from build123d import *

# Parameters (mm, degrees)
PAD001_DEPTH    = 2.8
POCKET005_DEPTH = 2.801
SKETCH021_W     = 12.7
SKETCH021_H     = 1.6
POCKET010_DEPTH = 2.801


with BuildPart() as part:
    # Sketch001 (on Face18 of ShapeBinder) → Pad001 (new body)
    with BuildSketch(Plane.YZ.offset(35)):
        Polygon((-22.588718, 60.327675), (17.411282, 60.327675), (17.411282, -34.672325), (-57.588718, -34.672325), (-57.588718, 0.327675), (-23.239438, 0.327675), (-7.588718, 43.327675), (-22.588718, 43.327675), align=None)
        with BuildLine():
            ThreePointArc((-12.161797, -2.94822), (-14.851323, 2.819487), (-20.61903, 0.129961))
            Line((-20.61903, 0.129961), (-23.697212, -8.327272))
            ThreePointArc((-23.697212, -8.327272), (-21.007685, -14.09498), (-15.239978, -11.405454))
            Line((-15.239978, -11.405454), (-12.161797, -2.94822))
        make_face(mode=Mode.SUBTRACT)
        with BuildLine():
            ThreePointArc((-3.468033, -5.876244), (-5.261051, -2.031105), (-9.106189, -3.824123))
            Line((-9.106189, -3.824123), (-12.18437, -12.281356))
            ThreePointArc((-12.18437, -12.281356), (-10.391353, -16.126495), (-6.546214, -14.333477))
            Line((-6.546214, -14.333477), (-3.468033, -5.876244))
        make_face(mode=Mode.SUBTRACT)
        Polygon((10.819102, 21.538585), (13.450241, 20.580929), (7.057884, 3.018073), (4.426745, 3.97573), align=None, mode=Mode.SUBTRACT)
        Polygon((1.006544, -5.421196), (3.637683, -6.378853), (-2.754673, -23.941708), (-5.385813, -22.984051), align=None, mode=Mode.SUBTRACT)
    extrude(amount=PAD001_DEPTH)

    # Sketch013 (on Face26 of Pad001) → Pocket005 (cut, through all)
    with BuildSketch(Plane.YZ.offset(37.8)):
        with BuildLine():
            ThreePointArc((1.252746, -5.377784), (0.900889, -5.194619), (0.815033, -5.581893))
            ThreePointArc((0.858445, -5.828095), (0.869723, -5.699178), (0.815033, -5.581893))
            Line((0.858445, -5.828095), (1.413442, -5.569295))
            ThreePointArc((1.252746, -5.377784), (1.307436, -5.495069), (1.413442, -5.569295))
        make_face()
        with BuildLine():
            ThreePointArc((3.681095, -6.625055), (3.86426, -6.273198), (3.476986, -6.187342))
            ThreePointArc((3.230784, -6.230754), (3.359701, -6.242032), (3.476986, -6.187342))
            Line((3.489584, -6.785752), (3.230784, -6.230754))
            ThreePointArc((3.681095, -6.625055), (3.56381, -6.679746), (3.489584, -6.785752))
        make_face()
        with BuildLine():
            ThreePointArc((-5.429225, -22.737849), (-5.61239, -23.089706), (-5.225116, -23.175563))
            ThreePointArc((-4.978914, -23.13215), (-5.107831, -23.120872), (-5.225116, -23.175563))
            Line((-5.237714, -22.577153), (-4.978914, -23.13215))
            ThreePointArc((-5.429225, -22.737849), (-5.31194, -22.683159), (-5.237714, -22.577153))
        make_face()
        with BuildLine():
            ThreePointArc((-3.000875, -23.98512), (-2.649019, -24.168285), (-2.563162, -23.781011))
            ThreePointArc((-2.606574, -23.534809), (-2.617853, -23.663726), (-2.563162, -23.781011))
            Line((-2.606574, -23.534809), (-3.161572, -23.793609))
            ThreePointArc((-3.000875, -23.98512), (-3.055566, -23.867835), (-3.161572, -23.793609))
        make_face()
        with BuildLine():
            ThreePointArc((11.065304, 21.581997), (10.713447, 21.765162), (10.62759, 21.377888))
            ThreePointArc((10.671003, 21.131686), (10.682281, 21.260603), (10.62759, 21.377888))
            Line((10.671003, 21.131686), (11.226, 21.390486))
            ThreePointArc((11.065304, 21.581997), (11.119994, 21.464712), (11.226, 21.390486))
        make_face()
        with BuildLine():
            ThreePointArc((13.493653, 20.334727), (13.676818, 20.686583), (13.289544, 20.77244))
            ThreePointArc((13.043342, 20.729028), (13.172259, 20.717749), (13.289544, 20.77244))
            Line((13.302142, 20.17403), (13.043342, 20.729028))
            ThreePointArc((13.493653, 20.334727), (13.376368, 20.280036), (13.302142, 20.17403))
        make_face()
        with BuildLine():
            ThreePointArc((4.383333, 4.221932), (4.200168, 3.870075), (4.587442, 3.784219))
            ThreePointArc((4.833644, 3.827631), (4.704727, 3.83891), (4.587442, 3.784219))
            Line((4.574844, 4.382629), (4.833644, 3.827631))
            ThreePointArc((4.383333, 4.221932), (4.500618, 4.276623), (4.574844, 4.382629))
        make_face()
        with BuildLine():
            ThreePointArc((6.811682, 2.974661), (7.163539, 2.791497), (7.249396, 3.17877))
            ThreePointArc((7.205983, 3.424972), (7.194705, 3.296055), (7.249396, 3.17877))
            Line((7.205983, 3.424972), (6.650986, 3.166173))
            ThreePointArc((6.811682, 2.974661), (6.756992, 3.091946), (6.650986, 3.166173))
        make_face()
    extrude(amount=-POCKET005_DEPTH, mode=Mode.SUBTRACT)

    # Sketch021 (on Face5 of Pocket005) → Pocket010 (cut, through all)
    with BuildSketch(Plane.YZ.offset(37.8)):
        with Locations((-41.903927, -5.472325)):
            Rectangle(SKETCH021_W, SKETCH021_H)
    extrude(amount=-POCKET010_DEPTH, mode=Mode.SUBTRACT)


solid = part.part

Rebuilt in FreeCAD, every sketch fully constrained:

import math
import FreeCAD as App
import Part
import Sketcher
from FreeCAD import Vector
Q = App.Units.Quantity

doc = App.newDocument("Part")
body = doc.addObject("PartDesign::Body", "Body")

# Sketch on YZ plane
sketch1 = doc.addObject("Sketcher::SketchObject", "Sketch")
body.addObject(sketch1)
sketch1.AttachmentSupport = (doc.YZ_Plane, [""])
sketch1.MapMode = "FlatFace"
sketch1.AttachmentOffset = App.Placement(Vector(0, 0, 35), App.Rotation())
sketch1.addGeometry(Part.LineSegment(Vector(17.411282, 60.327675, 0), Vector(-22.588718, 60.327675, 0)), False)
sketch1.addGeometry(Part.LineSegment(Vector(-22.588718, 60.327675, 0), Vector(-22.588718, 43.327675, 0)), False)
sketch1.addGeometry(Part.LineSegment(Vector(-22.588718, 43.327675, 0), Vector(-7.588718, 43.327675, 0)), False)
sketch1.addGeometry(Part.LineSegment(Vector(-7.588718, 43.327675, 0), Vector(-23.239438, 0.327675, 0)), False)
sketch1.addGeometry(Part.LineSegment(Vector(-23.239438, 0.327675, 0), Vector(-57.588718, 0.327675, 0)), False)
sketch1.addGeometry(Part.LineSegment(Vector(-57.588718, 0.327675, 0), Vector(-57.588718, -34.672325, 0)), False)
sketch1.addGeometry(Part.LineSegment(Vector(-57.588718, -34.672325, 0), Vector(17.411282, -34.672325, 0)), False)
sketch1.addGeometry(Part.LineSegment(Vector(17.411282, -34.672325, 0), Vector(17.411282, 60.327675, 0)), False)
sketch1.addGeometry(Part.LineSegment(Vector(1.006544, -5.421196, 0), Vector(3.637683, -6.378853, 0)), False)
sketch1.addGeometry(Part.LineSegment(Vector(3.637683, -6.378853, 0), Vector(-2.754673, -23.941708, 0)), False)
sketch1.addGeometry(Part.LineSegment(Vector(-2.754673, -23.941708, 0), Vector(-5.385813, -22.984051, 0)), False)
sketch1.addGeometry(Part.LineSegment(Vector(-5.385813, -22.984051, 0), Vector(1.006544, -5.421196, 0)), False)
sketch1.addGeometry(Part.LineSegment(Vector(-3.468033, -5.876244, 0), Vector(-6.546214, -14.333477, 0)), False)
sketch1.addGeometry(Part.ArcOfCircle(Part.Circle(Vector(-9.365292, -13.307417, 0), Vector(0, 0, 1), 3), math.radians(159.999987), math.radians(340.000012)), False)
sketch1.addGeometry(Part.LineSegment(Vector(-12.18437, -12.281356, 0), Vector(-9.106189, -3.824123, 0)), False)
sketch1.addGeometry(Part.ArcOfCircle(Part.Circle(Vector(-6.287111, -4.850183, 0), Vector(0, 0, 1), 3), math.radians(-20.000006), math.radians(160.000005)), False)
sketch1.addGeometry(Part.LineSegment(Vector(-12.161797, -2.94822, 0), Vector(-15.239978, -11.405454, 0)), False)
sketch1.addGeometry(Part.ArcOfCircle(Part.Circle(Vector(-19.468595, -9.866363, 0), Vector(0, 0, 1), 4.5), math.radians(160.000001), math.radians(339.999992)), False)
sketch1.addGeometry(Part.LineSegment(Vector(-23.697212, -8.327272, 0), Vector(-20.61903, 0.129961, 0)), False)
sketch1.addGeometry(Part.ArcOfCircle(Part.Circle(Vector(-16.390414, -1.409129, 0), Vector(0, 0, 1), 4.5), math.radians(-20), math.radians(160)), False)
sketch1.addGeometry(Part.LineSegment(Vector(10.819102, 21.538585, 0), Vector(13.450241, 20.580929, 0)), False)
sketch1.addGeometry(Part.LineSegment(Vector(13.450241, 20.580929, 0), Vector(7.057884, 3.018073, 0)), False)
sketch1.addGeometry(Part.LineSegment(Vector(7.057884, 3.018073, 0), Vector(4.426745, 3.97573, 0)), False)
sketch1.addGeometry(Part.LineSegment(Vector(4.426745, 3.97573, 0), Vector(10.819102, 21.538585, 0)), False)
sketch1.addConstraint(Sketcher.Constraint("Coincident", 0, 2, 1, 1))
sketch1.addConstraint(Sketcher.Constraint("Coincident", 1, 2, 2, 1))
sketch1.addConstraint(Sketcher.Constraint("Coincident", 2, 2, 3, 1))
sketch1.addConstraint(Sketcher.Constraint("Coincident", 3, 2, 4, 1))
sketch1.addConstraint(Sketcher.Constraint("Coincident", 4, 2, 5, 1))
sketch1.addConstraint(Sketcher.Constraint("Coincident", 5, 2, 6, 1))
sketch1.addConstraint(Sketcher.Constraint("Coincident", 6, 2, 7, 1))
sketch1.addConstraint(Sketcher.Constraint("Coincident", 7, 2, 0, 1))
sketch1.addConstraint(Sketcher.Constraint("Coincident", 8, 2, 9, 1))
sketch1.addConstraint(Sketcher.Constraint("Coincident", 9, 2, 10, 1))
sketch1.addConstraint(Sketcher.Constraint("Coincident", 10, 2, 11, 1))
sketch1.addConstraint(Sketcher.Constraint("Coincident", 11, 2, 8, 1))
sketch1.addConstraint(Sketcher.Constraint("Tangent", 12, 2, 13, 2))
sketch1.addConstraint(Sketcher.Constraint("Tangent", 13, 1, 14, 1))
sketch1.addConstraint(Sketcher.Constraint("Tangent", 14, 2, 15, 2))
sketch1.addConstraint(Sketcher.Constraint("Tangent", 15, 1, 12, 1))
sketch1.addConstraint(Sketcher.Constraint("Tangent", 16, 2, 17, 2))
sketch1.addConstraint(Sketcher.Constraint("Tangent", 17, 1, 18, 1))
sketch1.addConstraint(Sketcher.Constraint("Tangent", 18, 2, 19, 2))
sketch1.addConstraint(Sketcher.Constraint("Tangent", 19, 1, 16, 1))
sketch1.addConstraint(Sketcher.Constraint("Coincident", 20, 2, 21, 1))
sketch1.addConstraint(Sketcher.Constraint("Coincident", 21, 2, 22, 1))
sketch1.addConstraint(Sketcher.Constraint("Coincident", 22, 2, 23, 1))
sketch1.addConstraint(Sketcher.Constraint("Coincident", 23, 2, 20, 1))
sketch1.addConstraint(Sketcher.Constraint("Horizontal", 0))
sketch1.addConstraint(Sketcher.Constraint("Vertical", 1))
sketch1.addConstraint(Sketcher.Constraint("Horizontal", 2))
sketch1.addConstraint(Sketcher.Constraint("Horizontal", 4))
sketch1.addConstraint(Sketcher.Constraint("Vertical", 5))
sketch1.addConstraint(Sketcher.Constraint("Horizontal", 6))
sketch1.addConstraint(Sketcher.Constraint("Vertical", 7))
sketch1.addConstraint(Sketcher.Constraint("Equal", 13, 15))
sketch1.addConstraint(Sketcher.Constraint("Equal", 17, 19))
sketch1.addConstraint(Sketcher.Constraint("Perpendicular", 3, 8))
sketch1.addConstraint(Sketcher.Constraint("Perpendicular", 8, 9))
sketch1.addConstraint(Sketcher.Constraint("Perpendicular", 9, 10))
sketch1.addConstraint(Sketcher.Constraint("Perpendicular", 10, 11))
sketch1.addConstraint(Sketcher.Constraint("Parallel", 11, 12))
sketch1.addConstraint(Sketcher.Constraint("Parallel", 14, 16))
sketch1.addConstraint(Sketcher.Constraint("Perpendicular", 18, 20))
sketch1.addConstraint(Sketcher.Constraint("Perpendicular", 20, 21))
sketch1.addConstraint(Sketcher.Constraint("Perpendicular", 21, 22))
sketch1.addConstraint(Sketcher.Constraint("Perpendicular", 22, 23))
sketch1.addConstraint(Sketcher.Constraint("Equal", 14, 16))
sketch1.addConstraint(Sketcher.Constraint("Equal", 10, 20))
sketch1.addConstraint(Sketcher.Constraint("Equal", 11, 21))
sketch1.addConstraint(Sketcher.Constraint("Radius", 13, 3.0))
sketch1.addConstraint(Sketcher.Constraint("Radius", 17, 4.5))
sketch1.addConstraint(Sketcher.Constraint("DistanceX", 0, 2, 0, 1, 40.0))
sketch1.addConstraint(Sketcher.Constraint("DistanceX", 2, 1, 2, 2, 15.0))
sketch1.addConstraint(Sketcher.Constraint("DistanceX", 6, 1, 6, 2, 75.0))
sketch1.addConstraint(Sketcher.Constraint("DistanceY", 1, 2, 1, 1, 17.0))
sketch1.addConstraint(Sketcher.Constraint("DistanceY", 5, 2, 5, 1, 35.0))
sketch1.addConstraint(Sketcher.Constraint("DistanceY", 7, 1, 7, 2, 95.0))
sketch1.addConstraint(Sketcher.Constraint("Angle", 3, Q("-110 deg")))
sketch1.addConstraint(Sketcher.Constraint("Distance", 12, 8.999999))
sketch1.addConstraint(Sketcher.Constraint("Distance", 8, 2.8))
sketch1.addConstraint(Sketcher.Constraint("Distance", 9, 18.69))
sketch1.addConstraint(Sketcher.Constraint("DistanceX", 12, 2, 10, 2, 1.160401))
sketch1.addConstraint(Sketcher.Constraint("DistanceX", 8, 2, 21, 2, 3.420201))
sketch1.addConstraint(Sketcher.Constraint("DistanceX", 15, 3, -1, 1, 6.287111))
sketch1.addConstraint(Sketcher.Constraint("DistanceY", 19, 3, -1, 1, 1.409129))
sketch1.addConstraint(Sketcher.Constraint("DistanceX", 0, 2, -1, 1, 22.588718))
sketch1.addConstraint(Sketcher.Constraint("DistanceY", 10, 2, -1, 1, 22.984051))
sketch1.addConstraint(Sketcher.Constraint("DistanceX", 16, 2, -1, 1, 15.239978))
sketch1.addConstraint(Sketcher.Constraint("DistanceY", -1, 1, 20, 2, 20.580929))
sketch1.addConstraint(Sketcher.Constraint("DistanceY", 17, 3, 15, 3, 5.016179))
sketch1.addConstraint(Sketcher.Constraint("DistanceY", 15, 3, 0, 2, 65.177858))
pad1 = doc.addObject("PartDesign::Pad", "Pad")
body.addObject(pad1)
pad1.Profile = sketch1
pad1.Length = 2.8

# Sketch on YZ plane
sketch2 = doc.addObject("Sketcher::SketchObject", "Sketch001")
body.addObject(sketch2)
sketch2.AttachmentSupport = (doc.YZ_Plane, [""])
sketch2.MapMode = "FlatFace"
sketch2.AttachmentOffset = App.Placement(Vector(0, 0, 37.8), App.Rotation())
sketch2.addGeometry(Part.ArcOfCircle(Part.Circle(Vector(1.006544, -5.421196, 0), Vector(0, 0, 1), 0.25), math.radians(9.999947), math.radians(220.000069)), False)
sketch2.addGeometry(Part.ArcOfCircle(Part.Circle(Vector(0.623516, -5.742591, 0), Vector(0, 0, 1), 0.250005), math.radians(-19.999312), math.radians(39.999287)), False)
sketch2.addGeometry(Part.LineSegment(Vector(0.858445, -5.828095, 0), Vector(1.413442, -5.569295, 0)), False)
sketch2.addGeometry(Part.ArcOfCircle(Part.Circle(Vector(1.498945, -5.334375, 0), Vector(0, 0, 1), 0.249996), math.radians(-170.000573), math.radians(-109.999711)), False)
sketch2.addGeometry(Part.ArcOfCircle(Part.Circle(Vector(3.637683, -6.378853, 0), Vector(0, 0, 1), 0.25), math.radians(-80.000053), math.radians(130.000069)), False)
sketch2.addGeometry(Part.ArcOfCircle(Part.Circle(Vector(3.316288, -5.995825, 0), Vector(0, 0, 1), 0.250005), math.radians(-109.999312), math.radians(-50.000713)), False)
sketch2.addGeometry(Part.LineSegment(Vector(3.230784, -6.230754, 0), Vector(3.489584, -6.785752, 0)), False)
sketch2.addGeometry(Part.ArcOfCircle(Part.Circle(Vector(3.724507, -6.871257, 0), Vector(0, 0, 1), 0.25), math.radians(100.000003), math.radians(160.000063)), False)
sketch2.addGeometry(Part.ArcOfCircle(Part.Circle(Vector(-5.385813, -22.984051, 0), Vector(0, 0, 1), 0.25), math.radians(100.000038), math.radians(309.999878)), False)
sketch2.addGeometry(Part.ArcOfCircle(Part.Circle(Vector(-5.064418, -23.367076, 0), Vector(0, 0, 1), 0.250002), math.radians(70.000513), math.radians(129.999914)), False)
sketch2.addGeometry(Part.LineSegment(Vector(-4.978914, -23.13215, 0), Vector(-5.237714, -22.577153, 0)), False)
sketch2.addGeometry(Part.ArcOfCircle(Part.Circle(Vector(-5.472634, -22.49165, 0), Vector(0, 0, 1), 0.249996), math.radians(-80.000573), math.radians(-19.999711)), False)
sketch2.addGeometry(Part.ArcOfCircle(Part.Circle(Vector(-2.754673, -23.941708, 0), Vector(0, 0, 1), 0.25), math.radians(-169.999979), math.radians(39.999995)), False)
sketch2.addGeometry(Part.ArcOfCircle(Part.Circle(Vector(-2.371652, -23.620314, 0), Vector(0, 0, 1), 0.249999), math.radians(159.999846), math.radians(220.000129)), False)
sketch2.addGeometry(Part.LineSegment(Vector(-2.606574, -23.534809, 0), Vector(-3.161572, -23.793609, 0)), False)
sketch2.addGeometry(Part.ArcOfCircle(Part.Circle(Vector(-3.247077, -24.028532, 0), Vector(0, 0, 1), 0.25), math.radians(10.000003), math.radians(70.000063)), False)
sketch2.addGeometry(Part.ArcOfCircle(Part.Circle(Vector(10.819102, 21.538585, 0), Vector(0, 0, 1), 0.25), math.radians(10.000038), math.radians(219.999878)), False)
sketch2.addGeometry(Part.ArcOfCircle(Part.Circle(Vector(10.436077, 21.21719, 0), Vector(0, 0, 1), 0.250002), math.radians(-19.999487), math.radians(39.999914)), False)
sketch2.addGeometry(Part.LineSegment(Vector(10.671003, 21.131686, 0), Vector(11.226, 21.390486, 0)), False)
sketch2.addGeometry(Part.ArcOfCircle(Part.Circle(Vector(11.311503, 21.625406, 0), Vector(0, 0, 1), 0.249996), math.radians(-170.000573), math.radians(-109.999711)), False)
sketch2.addGeometry(Part.ArcOfCircle(Part.Circle(Vector(13.450241, 20.580929, 0), Vector(0, 0, 1), 0.25), math.radians(-79.999979), math.radians(129.999995)), False)
sketch2.addGeometry(Part.ArcOfCircle(Part.Circle(Vector(13.128847, 20.96395, 0), Vector(0, 0, 1), 0.249999), math.radians(-110.000154), math.radians(-49.999871)), False)
sketch2.addGeometry(Part.LineSegment(Vector(13.043342, 20.729028, 0), Vector(13.302142, 20.17403, 0)), False)
sketch2.addGeometry(Part.ArcOfCircle(Part.Circle(Vector(13.537065, 20.088525, 0), Vector(0, 0, 1), 0.25), math.radians(100.000003), math.radians(160.000063)), False)
sketch2.addGeometry(Part.ArcOfCircle(Part.Circle(Vector(4.426745, 3.97573, 0), Vector(0, 0, 1), 0.25), math.radians(99.999947), math.radians(310.000069)), False)
sketch2.addGeometry(Part.ArcOfCircle(Part.Circle(Vector(4.748139, 3.592709, 0), Vector(0, 0, 1), 0.249999), math.radians(69.999846), math.radians(130.000129)), False)
sketch2.addGeometry(Part.LineSegment(Vector(4.833644, 3.827631, 0), Vector(4.574844, 4.382629, 0)), False)
sketch2.addGeometry(Part.ArcOfCircle(Part.Circle(Vector(4.339921, 4.468134, 0), Vector(0, 0, 1), 0.25), math.radians(-79.999997), math.radians(-19.999937)), False)
sketch2.addGeometry(Part.ArcOfCircle(Part.Circle(Vector(7.057884, 3.018074, 0), Vector(0, 0, 1), 0.25), math.radians(-169.999803), math.radians(39.999719)), False)
sketch2.addGeometry(Part.ArcOfCircle(Part.Circle(Vector(7.440909, 3.339468, 0), Vector(0, 0, 1), 0.250002), math.radians(160.000513), math.radians(219.999914)), False)
sketch2.addGeometry(Part.LineSegment(Vector(7.205983, 3.424972, 0), Vector(6.650986, 3.166173, 0)), False)
sketch2.addGeometry(Part.ArcOfCircle(Part.Circle(Vector(6.56548, 2.931251, 0), Vector(0, 0, 1), 0.25), math.radians(9.999642), math.radians(69.999779)), False)
sketch2.addConstraint(Sketcher.Constraint("Coincident", 0, 2, 1, 2))
sketch2.addConstraint(Sketcher.Constraint("Coincident", 1, 1, 2, 1))
sketch2.addConstraint(Sketcher.Constraint("Coincident", 2, 2, 3, 2))
sketch2.addConstraint(Sketcher.Constraint("Coincident", 3, 1, 0, 1))
sketch2.addConstraint(Sketcher.Constraint("Coincident", 4, 2, 5, 2))
sketch2.addConstraint(Sketcher.Constraint("Coincident", 5, 1, 6, 1))
sketch2.addConstraint(Sketcher.Constraint("Coincident", 6, 2, 7, 2))
sketch2.addConstraint(Sketcher.Constraint("Tangent", 7, 1, 4, 1))
sketch2.addConstraint(Sketcher.Constraint("Tangent", 8, 2, 9, 2))
sketch2.addConstraint(Sketcher.Constraint("Coincident", 9, 1, 10, 1))
sketch2.addConstraint(Sketcher.Constraint("Coincident", 10, 2, 11, 2))
sketch2.addConstraint(Sketcher.Constraint("Coincident", 11, 1, 8, 1))
sketch2.addConstraint(Sketcher.Constraint("Coincident", 12, 2, 13, 2))
sketch2.addConstraint(Sketcher.Constraint("Coincident", 13, 1, 14, 1))
sketch2.addConstraint(Sketcher.Constraint("Coincident", 14, 2, 15, 2))
sketch2.addConstraint(Sketcher.Constraint("Tangent", 15, 1, 12, 1))
sketch2.addConstraint(Sketcher.Constraint("Tangent", 16, 2, 17, 2))
sketch2.addConstraint(Sketcher.Constraint("Coincident", 17, 1, 18, 1))
sketch2.addConstraint(Sketcher.Constraint("Coincident", 18, 2, 19, 2))
sketch2.addConstraint(Sketcher.Constraint("Coincident", 19, 1, 16, 1))
sketch2.addConstraint(Sketcher.Constraint("Coincident", 20, 2, 21, 2))
sketch2.addConstraint(Sketcher.Constraint("Coincident", 21, 1, 22, 1))
sketch2.addConstraint(Sketcher.Constraint("Coincident", 22, 2, 23, 2))
sketch2.addConstraint(Sketcher.Constraint("Tangent", 23, 1, 20, 1))
sketch2.addConstraint(Sketcher.Constraint("Tangent", 24, 2, 25, 2))
sketch2.addConstraint(Sketcher.Constraint("Coincident", 25, 1, 26, 1))
sketch2.addConstraint(Sketcher.Constraint("Coincident", 26, 2, 27, 2))
sketch2.addConstraint(Sketcher.Constraint("Tangent", 27, 1, 24, 1))
sketch2.addConstraint(Sketcher.Constraint("Coincident", 28, 2, 29, 2))
sketch2.addConstraint(Sketcher.Constraint("Coincident", 29, 1, 30, 1))
sketch2.addConstraint(Sketcher.Constraint("Coincident", 30, 2, 31, 2))
sketch2.addConstraint(Sketcher.Constraint("Coincident", 31, 1, 28, 1))
sketch2.addConstraint(Sketcher.Constraint("Equal", 0, 4))
sketch2.addConstraint(Sketcher.Constraint("Equal", 1, 5))
sketch2.addConstraint(Sketcher.Constraint("Equal", 4, 7))
sketch2.addConstraint(Sketcher.Constraint("Equal", 7, 8))
sketch2.addConstraint(Sketcher.Constraint("Equal", 3, 11))
sketch2.addConstraint(Sketcher.Constraint("Equal", 8, 12))
sketch2.addConstraint(Sketcher.Constraint("Equal", 12, 13))
sketch2.addConstraint(Sketcher.Constraint("Equal", 13, 15))
sketch2.addConstraint(Sketcher.Constraint("Equal", 15, 16))
sketch2.addConstraint(Sketcher.Constraint("Equal", 9, 17))
sketch2.addConstraint(Sketcher.Constraint("Equal", 11, 19))
sketch2.addConstraint(Sketcher.Constraint("Equal", 16, 20))
sketch2.addConstraint(Sketcher.Constraint("Equal", 20, 21))
sketch2.addConstraint(Sketcher.Constraint("Equal", 21, 23))
sketch2.addConstraint(Sketcher.Constraint("Equal", 23, 24))
sketch2.addConstraint(Sketcher.Constraint("Equal", 24, 25))
sketch2.addConstraint(Sketcher.Constraint("Equal", 25, 27))
sketch2.addConstraint(Sketcher.Constraint("Equal", 27, 28))
sketch2.addConstraint(Sketcher.Constraint("Equal", 17, 29))
sketch2.addConstraint(Sketcher.Constraint("Equal", 28, 31))
sketch2.addConstraint(Sketcher.Constraint("Perpendicular", 2, 6))
sketch2.addConstraint(Sketcher.Constraint("Parallel", 6, 10))
sketch2.addConstraint(Sketcher.Constraint("Perpendicular", 10, 14))
sketch2.addConstraint(Sketcher.Constraint("Parallel", 14, 18))
sketch2.addConstraint(Sketcher.Constraint("Perpendicular", 18, 22))
sketch2.addConstraint(Sketcher.Constraint("Parallel", 22, 26))
sketch2.addConstraint(Sketcher.Constraint("Perpendicular", 26, 30))
sketch2.addConstraint(Sketcher.Constraint("Equal", 2, 6))
sketch2.addConstraint(Sketcher.Constraint("Equal", 6, 10))
sketch2.addConstraint(Sketcher.Constraint("Equal", 10, 14))
sketch2.addConstraint(Sketcher.Constraint("Equal", 14, 18))
sketch2.addConstraint(Sketcher.Constraint("Equal", 18, 22))
sketch2.addConstraint(Sketcher.Constraint("Equal", 22, 26))
sketch2.addConstraint(Sketcher.Constraint("Equal", 26, 30))
sketch2.addConstraint(Sketcher.Constraint("Angle", 6, Q("-64.999985 deg")))
sketch2.addConstraint(Sketcher.Constraint("Radius", 0, 0.25))
sketch2.addConstraint(Sketcher.Constraint("DistanceX", -1, 1, 18, 2, 11.226))
sketch2.addConstraint(Sketcher.Constraint("Radius", 1, 0.250005))
sketch2.addConstraint(Sketcher.Constraint("Radius", 3, 0.249996))
sketch2.addConstraint(Sketcher.Constraint("Radius", 9, 0.250002))
sketch2.addConstraint(Sketcher.Constraint("DistanceY", 6, 2, 5, 1, 0.554998))
sketch2.addConstraint(Sketcher.Constraint("DistanceX", -1, 1, 16, 3, 10.819102))
sketch2.addConstraint(Sketcher.Constraint("DistanceX", 0, 3, 3, 3, 0.492401))
sketch2.addConstraint(Sketcher.Constraint("DistanceY", 8, 3, 4, 3, 16.605198))
sketch2.addConstraint(Sketcher.Constraint("DistanceX", 9, 3, 4, 3, 8.702101))
sketch2.addConstraint(Sketcher.Constraint("DistanceY", 8, 3, 11, 3, 0.492401))
sketch2.addConstraint(Sketcher.Constraint("DistanceX", 16, 3, 19, 3, 0.492401))
sketch2.addConstraint(Sketcher.Constraint("DistanceY", 0, 3, 19, 3, 27.046602))
sketch2.addConstraint(Sketcher.Constraint("DistanceX", 3, 3, 24, 3, 2.9278))
sketch2.addConstraint(Sketcher.Constraint("DistanceY", 5, 3, 28, 3, 9.013899))
sketch2.addConstraint(Sketcher.Constraint("DistanceX", 4, 3, 28, 3, 3.420201))
sketch2.addConstraint(Sketcher.Constraint("DistanceX", 1, 1, 0, 3, 0.148099))
sketch2.addConstraint(Sketcher.Constraint("DistanceX", 3, 1, 3, 3, 0.246199))
sketch2.addConstraint(Sketcher.Constraint("DistanceX", 5, 1, 4, 3, 0.406899))
sketch2.addConstraint(Sketcher.Constraint("DistanceY", 4, 3, 5, 1, 0.148099))
sketch2.addConstraint(Sketcher.Constraint("DistanceX", 8, 2, 9, 3, 0.160698))
sketch2.addConstraint(Sketcher.Constraint("DistanceY", 11, 1, 11, 3, 0.246199))
sketch2.addConstraint(Sketcher.Constraint("DistanceX", 12, 3, 13, 1, 0.148099))
sketch2.addConstraint(Sketcher.Constraint("DistanceY", 12, 3, 13, 1, 0.406899))
sketch2.addConstraint(Sketcher.Constraint("DistanceX", 19, 1, 19, 3, 0.246199))
sketch2.addConstraint(Sketcher.Constraint("DistanceX", 21, 1, 20, 3, 0.406899))
sketch2.addConstraint(Sketcher.Constraint("DistanceY", 20, 3, 21, 1, 0.148099))
sketch2.addConstraint(Sketcher.Constraint("DistanceX", 24, 2, 25, 1, 0.246202))
sketch2.addConstraint(Sketcher.Constraint("DistanceX", 24, 3, 25, 1, 0.406899))
sketch2.addConstraint(Sketcher.Constraint("DistanceY", 28, 2, 29, 3, 0.160698))
sketch2.addConstraint(Sketcher.Constraint("DistanceY", 28, 2, 29, 1, 0.246202))
sketch2.addConstraint(Sketcher.Constraint("DistanceX", 28, 3, 29, 1, 0.148099))
sketch2.addConstraint(Sketcher.Constraint("DistanceX", 31, 3, 31, 1, 0.246202))
sketch2.addConstraint(Sketcher.Constraint("DistanceY", 1, 3, -1, 1, 5.742591))
sketch2.addConstraint(Sketcher.Constraint("DistanceX", -1, 1, 5, 3, 3.316288))
sketch2.addConstraint(Sketcher.Constraint("DistanceY", 8, 3, -1, 1, 22.984051))
sketch2.addConstraint(Sketcher.Constraint("DistanceX", -1, 1, 20, 3, 13.450241))
sketch2.addConstraint(Sketcher.Constraint("DistanceY", -1, 1, 20, 3, 20.580929))
sketch2.addConstraint(Sketcher.Constraint("DistanceY", -1, 1, 24, 3, 3.97573))
sketch2.addConstraint(Sketcher.Constraint("DistanceX", -1, 1, 25, 3, 4.748139))
sketch2.addConstraint(Sketcher.Constraint("DistanceY", 12, 2, -1, 1, 23.781011))
sketch2.addConstraint(Sketcher.Constraint("DistanceY", 13, 1, -1, 1, 23.534809))
sketch2.addConstraint(Sketcher.Constraint("DistanceX", 14, 2, -1, 1, 3.161572))
sketch2.addConstraint(Sketcher.Constraint("DistanceY", -1, 1, 20, 2, 20.77244))
sketch2.addConstraint(Sketcher.Constraint("DistanceX", 0, 2, 0, 3, 0.191511))
sketch2.addConstraint(Sketcher.Constraint("DistanceY", 4, 3, 4, 2, 0.191511))
pocket1 = doc.addObject("PartDesign::Pocket", "Pocket")
body.addObject(pocket1)
pocket1.Profile = sketch2
pocket1.Type = "ThroughAll"

# Sketch on YZ plane
sketch3 = doc.addObject("Sketcher::SketchObject", "Sketch002")
body.addObject(sketch3)
sketch3.AttachmentSupport = (doc.YZ_Plane, [""])
sketch3.MapMode = "FlatFace"
sketch3.AttachmentOffset = App.Placement(Vector(0, 0, 37.8), App.Rotation())
sketch3.addGeometry(Part.LineSegment(Vector(-48.253927, -4.672325, 0), Vector(-48.253927, -6.272325, 0)), False)
sketch3.addGeometry(Part.LineSegment(Vector(-48.253927, -6.272325, 0), Vector(-35.553927, -6.272325, 0)), False)
sketch3.addGeometry(Part.LineSegment(Vector(-35.553927, -6.272325, 0), Vector(-35.553927, -4.672325, 0)), False)
sketch3.addGeometry(Part.LineSegment(Vector(-35.553927, -4.672325, 0), Vector(-48.253927, -4.672325, 0)), False)
sketch3.addConstraint(Sketcher.Constraint("Coincident", 0, 2, 1, 1))
sketch3.addConstraint(Sketcher.Constraint("Coincident", 1, 2, 2, 1))
sketch3.addConstraint(Sketcher.Constraint("Coincident", 2, 2, 3, 1))
sketch3.addConstraint(Sketcher.Constraint("Coincident", 3, 2, 0, 1))
sketch3.addConstraint(Sketcher.Constraint("Vertical", 0))
sketch3.addConstraint(Sketcher.Constraint("Horizontal", 1))
sketch3.addConstraint(Sketcher.Constraint("Vertical", 2))
sketch3.addConstraint(Sketcher.Constraint("Horizontal", 3))
sketch3.addConstraint(Sketcher.Constraint("DistanceX", 1, 1, 1, 2, 12.7))
sketch3.addConstraint(Sketcher.Constraint("DistanceY", 0, 2, 0, 1, 1.6))
sketch3.addConstraint(Sketcher.Constraint("DistanceX", 0, 2, -1, 1, 48.253927))
sketch3.addConstraint(Sketcher.Constraint("DistanceY", 0, 2, -1, 1, 6.272325))
pocket2 = doc.addObject("PartDesign::Pocket", "Pocket001")
body.addObject(pocket2)
pocket2.Profile = sketch3
pocket2.Type = "ThroughAll"

doc.recompute()
